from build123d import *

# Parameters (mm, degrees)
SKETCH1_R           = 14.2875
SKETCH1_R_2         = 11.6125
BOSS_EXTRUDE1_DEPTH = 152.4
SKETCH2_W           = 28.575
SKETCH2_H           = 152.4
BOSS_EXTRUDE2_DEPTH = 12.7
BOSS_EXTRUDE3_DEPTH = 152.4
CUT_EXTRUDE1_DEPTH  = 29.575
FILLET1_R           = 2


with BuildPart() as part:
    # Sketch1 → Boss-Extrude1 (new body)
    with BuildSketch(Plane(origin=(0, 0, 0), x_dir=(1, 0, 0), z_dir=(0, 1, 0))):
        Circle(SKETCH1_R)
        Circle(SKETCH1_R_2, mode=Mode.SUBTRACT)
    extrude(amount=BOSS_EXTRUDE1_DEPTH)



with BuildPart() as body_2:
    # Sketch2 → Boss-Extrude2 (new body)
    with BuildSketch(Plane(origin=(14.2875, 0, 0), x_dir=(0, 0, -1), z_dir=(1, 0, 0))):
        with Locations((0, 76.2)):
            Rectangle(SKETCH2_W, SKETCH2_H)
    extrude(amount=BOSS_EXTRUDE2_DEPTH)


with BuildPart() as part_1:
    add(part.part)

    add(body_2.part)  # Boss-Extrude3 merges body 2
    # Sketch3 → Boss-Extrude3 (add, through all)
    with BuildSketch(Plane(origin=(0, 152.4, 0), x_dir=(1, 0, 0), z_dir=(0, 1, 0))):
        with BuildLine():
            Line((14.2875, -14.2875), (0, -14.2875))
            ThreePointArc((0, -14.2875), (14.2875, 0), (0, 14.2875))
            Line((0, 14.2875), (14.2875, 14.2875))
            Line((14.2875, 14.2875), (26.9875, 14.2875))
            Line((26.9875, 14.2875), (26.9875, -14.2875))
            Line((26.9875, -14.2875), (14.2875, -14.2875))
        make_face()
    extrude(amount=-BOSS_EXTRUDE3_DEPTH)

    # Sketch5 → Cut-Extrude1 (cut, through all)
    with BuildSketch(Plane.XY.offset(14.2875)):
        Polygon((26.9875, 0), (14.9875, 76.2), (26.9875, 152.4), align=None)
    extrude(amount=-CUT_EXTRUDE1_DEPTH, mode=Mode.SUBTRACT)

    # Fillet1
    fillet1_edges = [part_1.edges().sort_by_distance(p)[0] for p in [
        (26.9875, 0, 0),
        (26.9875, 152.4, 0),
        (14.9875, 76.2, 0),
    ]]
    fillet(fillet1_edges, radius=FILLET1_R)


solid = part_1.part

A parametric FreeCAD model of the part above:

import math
import FreeCAD as App
import Part
import Sketcher
from FreeCAD import Vector
Q = App.Units.Quantity


def edges_at(feature, points):
    """Names of the edges that pass closest to the given points."""
    edges = feature.Shape.Edges
    near = lambda p: min(range(len(edges)), key=lambda i: edges[i].distToShape(Part.Vertex(*p))[0])
    return sorted({f"Edge{near(p) + 1}" for p in points})

doc = App.newDocument("Part")
body = doc.addObject("PartDesign::Body", "Body")

sketch1 = body.newObject("Sketcher::SketchObject", "Sketch")
sketch1.AttachmentSupport = (doc.getObject("XZ_Plane"), [""])
sketch1.MapMode = "FlatFace"
sketch1.addGeometry([
    Part.Circle(Vector(0, 0, 0), Vector(0, 0, 1), 14),
    Part.Circle(Vector(0, 0, 0), Vector(0, 0, 1), 12),
], False)
sketch1.addConstraint([
    Sketcher.Constraint("Coincident", 0, 3, -1, 1),
    Sketcher.Constraint("Coincident", 1, 3, -1, 1),
    Sketcher.Constraint("Diameter", 0, Q("1.125 in")),
    Sketcher.Constraint("Diameter", 1, Q("23.225 mm")),
])
pad1 = body.newObject("PartDesign::Pad", "Pad")
pad1.Profile = sketch1
pad1.Length = Q("6 in")
pad1.Reversed = True
body2 = doc.addObject("PartDesign::Body", "Body001")

sketch2 = body2.newObject("Sketcher::SketchObject", "Sketch001")
sketch2.AttachmentSupport = (doc.getObject("YZ_Plane001"), [""])
sketch2.MapMode = "FlatFace"
sketch2.AttachmentOffset = App.Placement(Vector(0, 0, 0.5625 * 25.4), App.Rotation())
sketch2.addGeometry([
    Part.LineSegment(Vector(152, 14, 0), Vector(0, 14, 0)),
    Part.LineSegment(Vector(0, 14, 0), Vector(0, -14, 0)),
    Part.LineSegment(Vector(0, -14, 0), Vector(152, -14, 0)),
    Part.LineSegment(Vector(152, -14, 0), Vector(152, 14, 0)),
], False)
sketch2.addConstraint([
    Sketcher.Constraint("Coincident", 0, 2, 1, 1),
    Sketcher.Constraint("Coincident", 1, 2, 2, 1),
    Sketcher.Constraint("Coincident", 2, 2, 3, 1),
    Sketcher.Constraint("Coincident", 3, 2, 0, 1),
    Sketcher.Constraint("Horizontal", 0),
    Sketcher.Constraint("Vertical", 1),
    Sketcher.Constraint("Horizontal", 2),
    Sketcher.Constraint("Vertical", 3),
    Sketcher.Constraint("Symmetric", 0, 2, 1, 2, -1, 1),
    Sketcher.Constraint("DistanceX", 0, 2, 0, 1, Q("6 in")),
    Sketcher.Constraint("DistanceY", 1, 2, 1, 1, Q("1.125 in")),
])
pad2 = body2.newObject("PartDesign::Pad", "Pad001")
pad2.Profile = sketch2
pad2.Length = Q("0.5 in")
body.AllowCompound = True
doc.recompute()

boolean = body.newObject("PartDesign::Boolean", "Boolean")
boolean.Type = "Fuse"
boolean.addObjects([body2])

sketch3 = body.newObject("Sketcher::SketchObject", "Sketch002")
sketch3.AttachmentSupport = (doc.getObject("XZ_Plane"), [""])
sketch3.MapMode = "FlatFace"
sketch3.AttachmentOffset = App.Placement(Vector(0, 0, -6 * 25.4), App.Rotation())
sketch3.addGeometry([
    Part.ArcOfCircle(Part.Circle(Vector(0, 0, 0), Vector(0, 0, 1), 14), math.radians(-90), math.radians(90)),
    Part.LineSegment(Vector(0, 14, 0), Vector(27, 14, 0)),
    Part.LineSegment(Vector(27, 14, 0), Vector(27, -14, 0)),
    Part.LineSegment(Vector(27, -14, 0), Vector(0, -14, 0)),
], False)
sketch3.addConstraint([
    Sketcher.Constraint("Tangent", 0, 2, 1, 1),
    Sketcher.Constraint("Coincident", 1, 2, 2, 1),
    Sketcher.Constraint("Coincident", 2, 2, 3, 1),
    Sketcher.Constraint("Tangent", 3, 2, 0, 1),
    Sketcher.Constraint("Horizontal", 1),
    Sketcher.Constraint("Vertical", 2),
    Sketcher.Constraint("Horizontal", 3),
    Sketcher.Constraint("Coincident", 0, 3, -1, 1),
    Sketcher.Constraint("Radius", 0, Q("0.5625 in")),
    Sketcher.Constraint("DistanceX", 1, 1, 1, 2, Q("1.0625 in")),
])
pad3 = body.newObject("PartDesign::Pad", "Pad002")
pad3.Profile = sketch3
pad3.Type = "UpToLast"

sketch4 = body.newObject("Sketcher::SketchObject", "Sketch003")
sketch4.AttachmentSupport = (doc.getObject("XY_Plane"), [""])
sketch4.MapMode = "FlatFace"
sketch4.AttachmentOffset = App.Placement(Vector(0, 0, 0.5625 * 25.4), App.Rotation())
sketch4.addGeometry([
    Part.LineSegment(Vector(15, 76, 0), Vector(27, 0, 0)),
    Part.LineSegment(Vector(27, 0, 0), Vector(27, 152, 0)),
    Part.LineSegment(Vector(27, 152, 0), Vector(15, 76, 0)),
], False)
sketch4.addConstraint([
    Sketcher.Constraint("Coincident", 0, 2, 1, 1),
    Sketcher.Constraint("Coincident", 1, 2, 2, 1),
    Sketcher.Constraint("Coincident", 2, 2, 0, 1),
    Sketcher.Constraint("Vertical", 1),
    Sketcher.Constraint("PointOnObject", 0, 2, -1),
    Sketcher.Constraint("Equal", 0, 2),
    Sketcher.Constraint("DistanceY", 1, 1, 1, 2, Q("6 in")),
    Sketcher.Constraint("DistanceX", -1, 1, 0, 2, Q("1.0625 in")),
    Sketcher.Constraint("DistanceX", -1, 1, 2, 2, Q("14.9875 mm")),
])
pocket1 = body.newObject("PartDesign::Pocket", "Pocket")
pocket1.Profile = sketch4
pocket1.Type = "ThroughAll"
doc.recompute()

fillet = body.newObject("PartDesign::Fillet", "Fillet")
fillet.Base = (pocket1, edges_at(pocket1, [(26.988, 0, 0), (26.988, 152.4, 0), (14.988, 76.2, 0)]))
fillet.Radius = 2

doc.recompute()
